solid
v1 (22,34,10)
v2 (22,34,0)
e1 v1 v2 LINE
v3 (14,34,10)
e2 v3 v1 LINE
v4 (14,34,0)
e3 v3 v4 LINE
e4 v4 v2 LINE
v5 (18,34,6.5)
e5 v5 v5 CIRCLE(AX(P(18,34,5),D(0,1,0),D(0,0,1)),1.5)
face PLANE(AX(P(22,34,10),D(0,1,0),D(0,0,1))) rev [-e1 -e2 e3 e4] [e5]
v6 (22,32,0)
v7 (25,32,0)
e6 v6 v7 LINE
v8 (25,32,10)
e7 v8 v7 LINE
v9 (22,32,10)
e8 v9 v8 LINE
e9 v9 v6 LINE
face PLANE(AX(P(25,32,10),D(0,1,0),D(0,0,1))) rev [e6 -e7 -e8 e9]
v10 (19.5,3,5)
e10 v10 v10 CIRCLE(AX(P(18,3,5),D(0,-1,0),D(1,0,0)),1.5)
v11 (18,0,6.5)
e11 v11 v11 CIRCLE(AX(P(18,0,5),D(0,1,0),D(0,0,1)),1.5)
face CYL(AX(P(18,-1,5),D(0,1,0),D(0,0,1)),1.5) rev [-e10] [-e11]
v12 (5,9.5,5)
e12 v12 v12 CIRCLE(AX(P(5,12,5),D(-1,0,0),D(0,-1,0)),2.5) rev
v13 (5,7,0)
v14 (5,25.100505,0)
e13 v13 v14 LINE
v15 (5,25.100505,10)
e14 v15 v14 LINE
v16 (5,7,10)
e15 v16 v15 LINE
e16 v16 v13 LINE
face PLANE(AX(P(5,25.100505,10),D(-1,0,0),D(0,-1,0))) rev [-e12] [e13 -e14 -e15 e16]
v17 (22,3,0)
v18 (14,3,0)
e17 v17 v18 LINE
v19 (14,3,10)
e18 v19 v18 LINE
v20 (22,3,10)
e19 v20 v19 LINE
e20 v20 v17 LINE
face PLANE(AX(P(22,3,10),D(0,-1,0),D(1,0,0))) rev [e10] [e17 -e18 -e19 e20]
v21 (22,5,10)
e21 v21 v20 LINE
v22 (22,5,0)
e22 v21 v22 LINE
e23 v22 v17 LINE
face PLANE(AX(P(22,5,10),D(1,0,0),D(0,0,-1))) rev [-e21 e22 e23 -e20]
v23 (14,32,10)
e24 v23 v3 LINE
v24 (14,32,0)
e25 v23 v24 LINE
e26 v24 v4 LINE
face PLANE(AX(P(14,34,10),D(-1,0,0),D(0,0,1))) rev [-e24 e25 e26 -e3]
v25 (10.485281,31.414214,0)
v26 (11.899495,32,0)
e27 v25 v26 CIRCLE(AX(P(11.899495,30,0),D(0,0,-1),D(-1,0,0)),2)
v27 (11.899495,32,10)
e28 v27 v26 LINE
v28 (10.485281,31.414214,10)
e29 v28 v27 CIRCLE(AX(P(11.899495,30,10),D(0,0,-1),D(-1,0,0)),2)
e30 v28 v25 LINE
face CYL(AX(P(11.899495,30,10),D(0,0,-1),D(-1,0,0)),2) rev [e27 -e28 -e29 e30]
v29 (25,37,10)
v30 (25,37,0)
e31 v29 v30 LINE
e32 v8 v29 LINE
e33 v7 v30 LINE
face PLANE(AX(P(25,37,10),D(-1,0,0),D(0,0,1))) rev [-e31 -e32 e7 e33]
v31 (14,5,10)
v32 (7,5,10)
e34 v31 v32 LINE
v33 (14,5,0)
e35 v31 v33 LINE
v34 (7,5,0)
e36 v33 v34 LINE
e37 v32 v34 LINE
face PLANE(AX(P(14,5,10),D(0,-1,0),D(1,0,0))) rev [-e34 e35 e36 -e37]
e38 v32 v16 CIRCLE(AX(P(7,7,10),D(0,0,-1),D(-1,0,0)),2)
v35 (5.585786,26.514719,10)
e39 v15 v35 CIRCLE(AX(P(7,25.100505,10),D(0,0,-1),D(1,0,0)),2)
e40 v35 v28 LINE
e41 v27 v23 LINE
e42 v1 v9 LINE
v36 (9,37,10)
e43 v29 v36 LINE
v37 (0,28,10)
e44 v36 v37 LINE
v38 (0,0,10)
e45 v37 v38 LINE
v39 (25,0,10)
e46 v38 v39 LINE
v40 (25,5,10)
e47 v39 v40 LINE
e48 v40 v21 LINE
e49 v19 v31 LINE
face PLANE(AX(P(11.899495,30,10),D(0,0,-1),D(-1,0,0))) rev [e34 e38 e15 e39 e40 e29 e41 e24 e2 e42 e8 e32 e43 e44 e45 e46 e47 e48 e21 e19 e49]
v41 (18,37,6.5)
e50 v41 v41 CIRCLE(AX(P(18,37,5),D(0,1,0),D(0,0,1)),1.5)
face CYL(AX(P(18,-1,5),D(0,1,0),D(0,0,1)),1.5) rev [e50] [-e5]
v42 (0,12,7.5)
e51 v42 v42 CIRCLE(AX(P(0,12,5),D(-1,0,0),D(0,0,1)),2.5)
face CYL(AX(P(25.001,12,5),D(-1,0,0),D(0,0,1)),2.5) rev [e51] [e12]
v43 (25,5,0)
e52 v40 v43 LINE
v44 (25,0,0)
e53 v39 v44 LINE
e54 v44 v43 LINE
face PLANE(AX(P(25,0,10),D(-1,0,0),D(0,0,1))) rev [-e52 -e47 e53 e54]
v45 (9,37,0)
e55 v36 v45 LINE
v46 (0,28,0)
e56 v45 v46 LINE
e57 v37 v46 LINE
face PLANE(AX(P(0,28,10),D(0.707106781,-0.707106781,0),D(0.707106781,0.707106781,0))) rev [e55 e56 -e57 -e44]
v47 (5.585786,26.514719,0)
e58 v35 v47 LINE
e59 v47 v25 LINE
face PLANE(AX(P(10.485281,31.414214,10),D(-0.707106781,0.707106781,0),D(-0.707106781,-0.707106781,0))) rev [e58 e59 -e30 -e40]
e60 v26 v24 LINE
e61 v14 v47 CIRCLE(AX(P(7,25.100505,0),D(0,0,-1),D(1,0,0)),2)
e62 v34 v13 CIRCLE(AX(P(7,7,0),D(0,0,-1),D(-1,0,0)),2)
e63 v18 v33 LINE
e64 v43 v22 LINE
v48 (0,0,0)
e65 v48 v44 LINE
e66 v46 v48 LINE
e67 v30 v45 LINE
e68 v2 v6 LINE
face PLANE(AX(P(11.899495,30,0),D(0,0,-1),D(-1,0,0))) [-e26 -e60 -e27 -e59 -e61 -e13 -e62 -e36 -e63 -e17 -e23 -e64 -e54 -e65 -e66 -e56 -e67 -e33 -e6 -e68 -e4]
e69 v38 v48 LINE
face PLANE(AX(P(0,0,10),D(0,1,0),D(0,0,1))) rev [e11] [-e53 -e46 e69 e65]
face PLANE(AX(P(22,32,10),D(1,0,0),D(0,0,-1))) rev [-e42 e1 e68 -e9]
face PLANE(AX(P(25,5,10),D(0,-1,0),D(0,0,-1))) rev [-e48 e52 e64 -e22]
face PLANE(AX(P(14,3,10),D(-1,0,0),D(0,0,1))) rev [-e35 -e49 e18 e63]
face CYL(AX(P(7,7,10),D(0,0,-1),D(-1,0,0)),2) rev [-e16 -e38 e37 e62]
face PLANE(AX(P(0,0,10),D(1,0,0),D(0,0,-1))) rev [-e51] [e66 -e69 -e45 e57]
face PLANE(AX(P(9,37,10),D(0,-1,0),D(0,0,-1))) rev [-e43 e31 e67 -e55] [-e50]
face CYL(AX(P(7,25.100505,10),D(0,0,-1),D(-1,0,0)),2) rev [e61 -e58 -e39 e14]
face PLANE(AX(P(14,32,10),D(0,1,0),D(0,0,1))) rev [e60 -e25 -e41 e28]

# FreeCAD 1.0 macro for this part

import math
import FreeCAD as App
import Part
import Sketcher
Q = App.Units.Quantity

doc = App.newDocument("Part")
body = doc.addObject("PartDesign::Body", "Body")

sketch1 = body.newObject("Sketcher::SketchObject", "Sketch")
sketch1.AttachmentSupport = (doc.getObject("XY_Plane"), [""])
sketch1.MapMode = "FlatFace"
sketch1.addGeometry([
    Part.LineSegment(App.Vector(0, 0, 0), App.Vector(25, 0, 0)),
    Part.LineSegment(App.Vector(25, 0, 0), App.Vector(25, 5, 0)),
    Part.LineSegment(App.Vector(25, 5, 0), App.Vector(22, 5, 0)),
    Part.LineSegment(App.Vector(22, 5, 0), App.Vector(22, 3, 0)),
    Part.LineSegment(App.Vector(22, 3, 0), App.Vector(14, 3, 0)),
    Part.LineSegment(App.Vector(14, 3, 0), App.Vector(14, 5, 0)),
    Part.LineSegment(App.Vector(14, 5, 0), App.Vector(7, 5, 0)),
    Part.ArcOfCircle(Part.Circle(App.Vector(7, 7, 0), App.Vector(0, 0, 1), 2), math.radians(-180), math.radians(-90)),
    Part.LineSegment(App.Vector(5, 7, 0), App.Vector(5, 25.100505, 0)),
    Part.ArcOfCircle(Part.Circle(App.Vector(7, 25.100505, 0), App.Vector(0, 0, 1), 2), math.radians(135), math.radians(180)),
    Part.LineSegment(App.Vector(5.585786, 26.514719, 0), App.Vector(10.485281, 31.414214, 0)),
    Part.ArcOfCircle(Part.Circle(App.Vector(11.899495, 30, 0), App.Vector(0, 0, 1), 2), math.radians(90), math.radians(135)),
    Part.LineSegment(App.Vector(11.899495, 32, 0), App.Vector(14, 32, 0)),
    Part.LineSegment(App.Vector(14, 32, 0), App.Vector(14, 34, 0)),
    Part.LineSegment(App.Vector(14, 34, 0), App.Vector(22, 34, 0)),
    Part.LineSegment(App.Vector(22, 34, 0), App.Vector(22, 32, 0)),
    Part.LineSegment(App.Vector(22, 32, 0), App.Vector(25, 32, 0)),
    Part.LineSegment(App.Vector(25, 32, 0), App.Vector(25, 37, 0)),
    Part.LineSegment(App.Vector(25, 37, 0), App.Vector(9, 37, 0)),
    Part.LineSegment(App.Vector(9, 37, 0), App.Vector(0, 28, 0)),
    Part.LineSegment(App.Vector(0, 28, 0), App.Vector(0, 0, 0)),
], False)
sketch1.addConstraint([
    Sketcher.Constraint("Coincident", 0, 2, 1, 1),
    Sketcher.Constraint("Coincident", 1, 2, 2, 1),
    Sketcher.Constraint("Coincident", 2, 2, 3, 1),
    Sketcher.Constraint("Coincident", 3, 2, 4, 1),
    Sketcher.Constraint("Coincident", 4, 2, 5, 1),
    Sketcher.Constraint("Coincident", 5, 2, 6, 1),
    Sketcher.Constraint("Tangent", 6, 2, 7, 2),
    Sketcher.Constraint("Tangent", 7, 1, 8, 1),
    Sketcher.Constraint("Tangent", 8, 2, 9, 2),
    Sketcher.Constraint("Tangent", 9, 1, 10, 1),
    Sketcher.Constraint("Tangent", 10, 2, 11, 2),
    Sketcher.Constraint("Tangent", 11, 1, 12, 1),
    Sketcher.Constraint("Coincident", 12, 2, 13, 1),
    Sketcher.Constraint("Coincident", 13, 2, 14, 1),
    Sketcher.Constraint("Coincident", 14, 2, 15, 1),
    Sketcher.Constraint("Coincident", 15, 2, 16, 1),
    Sketcher.Constraint("Coincident", 16, 2, 17, 1),
    Sketcher.Constraint("Coincident", 17, 2, 18, 1),
    Sketcher.Constraint("Coincident", 18, 2, 19, 1),
    Sketcher.Constraint("Coincident", 19, 2, 20, 1),
    Sketcher.Constraint("Coincident", 20, 2, 0, 1),
    Sketcher.Constraint("Horizontal", 0),
    Sketcher.Constraint("Vertical", 1),
    Sketcher.Constraint("Horizontal", 2),
    Sketcher.Constraint("Vertical", 3),
    Sketcher.Constraint("Horizontal", 4),
    Sketcher.Constraint("Vertical", 5),
    Sketcher.Constraint("Horizontal", 6),
    Sketcher.Constraint("Vertical", 8),
    Sketcher.Constraint("Horizontal", 12),
    Sketcher.Constraint("Vertical", 13),
    Sketcher.Constraint("Horizontal", 14),
    Sketcher.Constraint("Vertical", 15),
    Sketcher.Constraint("Horizontal", 16),
    Sketcher.Constraint("Vertical", 17),
    Sketcher.Constraint("Horizontal", 18),
    Sketcher.Constraint("Vertical", 20),
    Sketcher.Constraint("Coincident", 20, 2, -1, 1),
    Sketcher.Constraint("Equal", 7, 9),
    Sketcher.Constraint("Equal", 9, 11),
    Sketcher.Constraint("Parallel", 10, 19),
    Sketcher.Constraint("Horizontal", 2, 2, 5, 2),
    Sketcher.Constraint("Horizontal", 12, 2, 15, 2),
    Sketcher.Constraint("Vertical", 5, 2, 12, 2),
    Sketcher.Constraint("Vertical", 3, 2, 14, 2),
    Sketcher.Constraint("Vertical", 1, 2, 16, 2),
    Sketcher.Constraint("Equal", 5, 13),
    Sketcher.Constraint("Equal", 1, 17),
    Sketcher.Constraint("Radius", 7, Q("2 mm")),
    Sketcher.Constraint("DistanceX", 0, 1, 0, 2, Q("25 mm")),
    Sketcher.Constraint("DistanceX", 2, 2, 2, 1, Q("3 mm")),
    Sketcher.Constraint("DistanceX", 4, 2, 4, 1, Q("8 mm")),
    Sketcher.Constraint("DistanceX", 6, 2, 6, 1, Q("7 mm")),
    Sketcher.Constraint("DistanceX", 18, 2, 18, 1, Q("16 mm")),
    Sketcher.Constraint("DistanceY", 1, 1, 1, 2, Q("5 mm")),
    Sketcher.Constraint("DistanceY", 3, 2, 3, 1, Q("2 mm")),
    Sketcher.Constraint("DistanceY", 20, 2, 20, 1, Q("28 mm")),
    Sketcher.Constraint("Angle", 10, Q("45 deg")),
    Sketcher.Constraint("DistanceX", 12, 1, 12, 2, Q("2.100505 mm")),
])
pad1 = body.newObject("PartDesign::Pad", "Pad")
pad1.Profile = sketch1
pad1.Length = 10

sketch2 = body.newObject("Sketcher::SketchObject", "Sketch001")
sketch2.AttachmentSupport = (doc.getObject("XZ_Plane"), [""])
sketch2.MapMode = "FlatFace"
sketch2.AttachmentOffset = App.Placement(App.Vector(0, 0, -37), App.Rotation())
sketch2.addGeometry(Part.Circle(App.Vector(18, 5, 0), App.Vector(0, 0, 1), 1.5), False)
sketch2.addConstraint([
    Sketcher.Constraint("Diameter", 0, Q("3 mm")),
    Sketcher.Constraint("DistanceX", -1, 1, 0, 3, Q("18 mm")),
    Sketcher.Constraint("DistanceY", -1, 1, 0, 3, Q("5 mm")),
])
pocket1 = body.newObject("PartDesign::Pocket", "Pocket")
pocket1.Profile = sketch2
pocket1.Length = 38
pocket1.Reversed = True

sketch3 = body.newObject("Sketcher::SketchObject", "Sketch002")
sketch3.AttachmentSupport = (doc.getObject("YZ_Plane"), [""])
sketch3.MapMode = "FlatFace"
sketch3.addGeometry(Part.Circle(App.Vector(12, 5, 0), App.Vector(0, 0, 1), 2.5), False)
sketch3.addConstraint([
    Sketcher.Constraint("Diameter", 0, Q("5 mm")),
    Sketcher.Constraint("DistanceX", -1, 1, 0, 3, Q("12 mm")),
    Sketcher.Constraint("DistanceY", -1, 1, 0, 3, Q("5 mm")),
])
pocket2 = body.newObject("PartDesign::Pocket", "Pocket001")
pocket2.Profile = sketch3
pocket2.Type = "UpToFirst"
pocket2.Reversed = True

doc.recompute()
